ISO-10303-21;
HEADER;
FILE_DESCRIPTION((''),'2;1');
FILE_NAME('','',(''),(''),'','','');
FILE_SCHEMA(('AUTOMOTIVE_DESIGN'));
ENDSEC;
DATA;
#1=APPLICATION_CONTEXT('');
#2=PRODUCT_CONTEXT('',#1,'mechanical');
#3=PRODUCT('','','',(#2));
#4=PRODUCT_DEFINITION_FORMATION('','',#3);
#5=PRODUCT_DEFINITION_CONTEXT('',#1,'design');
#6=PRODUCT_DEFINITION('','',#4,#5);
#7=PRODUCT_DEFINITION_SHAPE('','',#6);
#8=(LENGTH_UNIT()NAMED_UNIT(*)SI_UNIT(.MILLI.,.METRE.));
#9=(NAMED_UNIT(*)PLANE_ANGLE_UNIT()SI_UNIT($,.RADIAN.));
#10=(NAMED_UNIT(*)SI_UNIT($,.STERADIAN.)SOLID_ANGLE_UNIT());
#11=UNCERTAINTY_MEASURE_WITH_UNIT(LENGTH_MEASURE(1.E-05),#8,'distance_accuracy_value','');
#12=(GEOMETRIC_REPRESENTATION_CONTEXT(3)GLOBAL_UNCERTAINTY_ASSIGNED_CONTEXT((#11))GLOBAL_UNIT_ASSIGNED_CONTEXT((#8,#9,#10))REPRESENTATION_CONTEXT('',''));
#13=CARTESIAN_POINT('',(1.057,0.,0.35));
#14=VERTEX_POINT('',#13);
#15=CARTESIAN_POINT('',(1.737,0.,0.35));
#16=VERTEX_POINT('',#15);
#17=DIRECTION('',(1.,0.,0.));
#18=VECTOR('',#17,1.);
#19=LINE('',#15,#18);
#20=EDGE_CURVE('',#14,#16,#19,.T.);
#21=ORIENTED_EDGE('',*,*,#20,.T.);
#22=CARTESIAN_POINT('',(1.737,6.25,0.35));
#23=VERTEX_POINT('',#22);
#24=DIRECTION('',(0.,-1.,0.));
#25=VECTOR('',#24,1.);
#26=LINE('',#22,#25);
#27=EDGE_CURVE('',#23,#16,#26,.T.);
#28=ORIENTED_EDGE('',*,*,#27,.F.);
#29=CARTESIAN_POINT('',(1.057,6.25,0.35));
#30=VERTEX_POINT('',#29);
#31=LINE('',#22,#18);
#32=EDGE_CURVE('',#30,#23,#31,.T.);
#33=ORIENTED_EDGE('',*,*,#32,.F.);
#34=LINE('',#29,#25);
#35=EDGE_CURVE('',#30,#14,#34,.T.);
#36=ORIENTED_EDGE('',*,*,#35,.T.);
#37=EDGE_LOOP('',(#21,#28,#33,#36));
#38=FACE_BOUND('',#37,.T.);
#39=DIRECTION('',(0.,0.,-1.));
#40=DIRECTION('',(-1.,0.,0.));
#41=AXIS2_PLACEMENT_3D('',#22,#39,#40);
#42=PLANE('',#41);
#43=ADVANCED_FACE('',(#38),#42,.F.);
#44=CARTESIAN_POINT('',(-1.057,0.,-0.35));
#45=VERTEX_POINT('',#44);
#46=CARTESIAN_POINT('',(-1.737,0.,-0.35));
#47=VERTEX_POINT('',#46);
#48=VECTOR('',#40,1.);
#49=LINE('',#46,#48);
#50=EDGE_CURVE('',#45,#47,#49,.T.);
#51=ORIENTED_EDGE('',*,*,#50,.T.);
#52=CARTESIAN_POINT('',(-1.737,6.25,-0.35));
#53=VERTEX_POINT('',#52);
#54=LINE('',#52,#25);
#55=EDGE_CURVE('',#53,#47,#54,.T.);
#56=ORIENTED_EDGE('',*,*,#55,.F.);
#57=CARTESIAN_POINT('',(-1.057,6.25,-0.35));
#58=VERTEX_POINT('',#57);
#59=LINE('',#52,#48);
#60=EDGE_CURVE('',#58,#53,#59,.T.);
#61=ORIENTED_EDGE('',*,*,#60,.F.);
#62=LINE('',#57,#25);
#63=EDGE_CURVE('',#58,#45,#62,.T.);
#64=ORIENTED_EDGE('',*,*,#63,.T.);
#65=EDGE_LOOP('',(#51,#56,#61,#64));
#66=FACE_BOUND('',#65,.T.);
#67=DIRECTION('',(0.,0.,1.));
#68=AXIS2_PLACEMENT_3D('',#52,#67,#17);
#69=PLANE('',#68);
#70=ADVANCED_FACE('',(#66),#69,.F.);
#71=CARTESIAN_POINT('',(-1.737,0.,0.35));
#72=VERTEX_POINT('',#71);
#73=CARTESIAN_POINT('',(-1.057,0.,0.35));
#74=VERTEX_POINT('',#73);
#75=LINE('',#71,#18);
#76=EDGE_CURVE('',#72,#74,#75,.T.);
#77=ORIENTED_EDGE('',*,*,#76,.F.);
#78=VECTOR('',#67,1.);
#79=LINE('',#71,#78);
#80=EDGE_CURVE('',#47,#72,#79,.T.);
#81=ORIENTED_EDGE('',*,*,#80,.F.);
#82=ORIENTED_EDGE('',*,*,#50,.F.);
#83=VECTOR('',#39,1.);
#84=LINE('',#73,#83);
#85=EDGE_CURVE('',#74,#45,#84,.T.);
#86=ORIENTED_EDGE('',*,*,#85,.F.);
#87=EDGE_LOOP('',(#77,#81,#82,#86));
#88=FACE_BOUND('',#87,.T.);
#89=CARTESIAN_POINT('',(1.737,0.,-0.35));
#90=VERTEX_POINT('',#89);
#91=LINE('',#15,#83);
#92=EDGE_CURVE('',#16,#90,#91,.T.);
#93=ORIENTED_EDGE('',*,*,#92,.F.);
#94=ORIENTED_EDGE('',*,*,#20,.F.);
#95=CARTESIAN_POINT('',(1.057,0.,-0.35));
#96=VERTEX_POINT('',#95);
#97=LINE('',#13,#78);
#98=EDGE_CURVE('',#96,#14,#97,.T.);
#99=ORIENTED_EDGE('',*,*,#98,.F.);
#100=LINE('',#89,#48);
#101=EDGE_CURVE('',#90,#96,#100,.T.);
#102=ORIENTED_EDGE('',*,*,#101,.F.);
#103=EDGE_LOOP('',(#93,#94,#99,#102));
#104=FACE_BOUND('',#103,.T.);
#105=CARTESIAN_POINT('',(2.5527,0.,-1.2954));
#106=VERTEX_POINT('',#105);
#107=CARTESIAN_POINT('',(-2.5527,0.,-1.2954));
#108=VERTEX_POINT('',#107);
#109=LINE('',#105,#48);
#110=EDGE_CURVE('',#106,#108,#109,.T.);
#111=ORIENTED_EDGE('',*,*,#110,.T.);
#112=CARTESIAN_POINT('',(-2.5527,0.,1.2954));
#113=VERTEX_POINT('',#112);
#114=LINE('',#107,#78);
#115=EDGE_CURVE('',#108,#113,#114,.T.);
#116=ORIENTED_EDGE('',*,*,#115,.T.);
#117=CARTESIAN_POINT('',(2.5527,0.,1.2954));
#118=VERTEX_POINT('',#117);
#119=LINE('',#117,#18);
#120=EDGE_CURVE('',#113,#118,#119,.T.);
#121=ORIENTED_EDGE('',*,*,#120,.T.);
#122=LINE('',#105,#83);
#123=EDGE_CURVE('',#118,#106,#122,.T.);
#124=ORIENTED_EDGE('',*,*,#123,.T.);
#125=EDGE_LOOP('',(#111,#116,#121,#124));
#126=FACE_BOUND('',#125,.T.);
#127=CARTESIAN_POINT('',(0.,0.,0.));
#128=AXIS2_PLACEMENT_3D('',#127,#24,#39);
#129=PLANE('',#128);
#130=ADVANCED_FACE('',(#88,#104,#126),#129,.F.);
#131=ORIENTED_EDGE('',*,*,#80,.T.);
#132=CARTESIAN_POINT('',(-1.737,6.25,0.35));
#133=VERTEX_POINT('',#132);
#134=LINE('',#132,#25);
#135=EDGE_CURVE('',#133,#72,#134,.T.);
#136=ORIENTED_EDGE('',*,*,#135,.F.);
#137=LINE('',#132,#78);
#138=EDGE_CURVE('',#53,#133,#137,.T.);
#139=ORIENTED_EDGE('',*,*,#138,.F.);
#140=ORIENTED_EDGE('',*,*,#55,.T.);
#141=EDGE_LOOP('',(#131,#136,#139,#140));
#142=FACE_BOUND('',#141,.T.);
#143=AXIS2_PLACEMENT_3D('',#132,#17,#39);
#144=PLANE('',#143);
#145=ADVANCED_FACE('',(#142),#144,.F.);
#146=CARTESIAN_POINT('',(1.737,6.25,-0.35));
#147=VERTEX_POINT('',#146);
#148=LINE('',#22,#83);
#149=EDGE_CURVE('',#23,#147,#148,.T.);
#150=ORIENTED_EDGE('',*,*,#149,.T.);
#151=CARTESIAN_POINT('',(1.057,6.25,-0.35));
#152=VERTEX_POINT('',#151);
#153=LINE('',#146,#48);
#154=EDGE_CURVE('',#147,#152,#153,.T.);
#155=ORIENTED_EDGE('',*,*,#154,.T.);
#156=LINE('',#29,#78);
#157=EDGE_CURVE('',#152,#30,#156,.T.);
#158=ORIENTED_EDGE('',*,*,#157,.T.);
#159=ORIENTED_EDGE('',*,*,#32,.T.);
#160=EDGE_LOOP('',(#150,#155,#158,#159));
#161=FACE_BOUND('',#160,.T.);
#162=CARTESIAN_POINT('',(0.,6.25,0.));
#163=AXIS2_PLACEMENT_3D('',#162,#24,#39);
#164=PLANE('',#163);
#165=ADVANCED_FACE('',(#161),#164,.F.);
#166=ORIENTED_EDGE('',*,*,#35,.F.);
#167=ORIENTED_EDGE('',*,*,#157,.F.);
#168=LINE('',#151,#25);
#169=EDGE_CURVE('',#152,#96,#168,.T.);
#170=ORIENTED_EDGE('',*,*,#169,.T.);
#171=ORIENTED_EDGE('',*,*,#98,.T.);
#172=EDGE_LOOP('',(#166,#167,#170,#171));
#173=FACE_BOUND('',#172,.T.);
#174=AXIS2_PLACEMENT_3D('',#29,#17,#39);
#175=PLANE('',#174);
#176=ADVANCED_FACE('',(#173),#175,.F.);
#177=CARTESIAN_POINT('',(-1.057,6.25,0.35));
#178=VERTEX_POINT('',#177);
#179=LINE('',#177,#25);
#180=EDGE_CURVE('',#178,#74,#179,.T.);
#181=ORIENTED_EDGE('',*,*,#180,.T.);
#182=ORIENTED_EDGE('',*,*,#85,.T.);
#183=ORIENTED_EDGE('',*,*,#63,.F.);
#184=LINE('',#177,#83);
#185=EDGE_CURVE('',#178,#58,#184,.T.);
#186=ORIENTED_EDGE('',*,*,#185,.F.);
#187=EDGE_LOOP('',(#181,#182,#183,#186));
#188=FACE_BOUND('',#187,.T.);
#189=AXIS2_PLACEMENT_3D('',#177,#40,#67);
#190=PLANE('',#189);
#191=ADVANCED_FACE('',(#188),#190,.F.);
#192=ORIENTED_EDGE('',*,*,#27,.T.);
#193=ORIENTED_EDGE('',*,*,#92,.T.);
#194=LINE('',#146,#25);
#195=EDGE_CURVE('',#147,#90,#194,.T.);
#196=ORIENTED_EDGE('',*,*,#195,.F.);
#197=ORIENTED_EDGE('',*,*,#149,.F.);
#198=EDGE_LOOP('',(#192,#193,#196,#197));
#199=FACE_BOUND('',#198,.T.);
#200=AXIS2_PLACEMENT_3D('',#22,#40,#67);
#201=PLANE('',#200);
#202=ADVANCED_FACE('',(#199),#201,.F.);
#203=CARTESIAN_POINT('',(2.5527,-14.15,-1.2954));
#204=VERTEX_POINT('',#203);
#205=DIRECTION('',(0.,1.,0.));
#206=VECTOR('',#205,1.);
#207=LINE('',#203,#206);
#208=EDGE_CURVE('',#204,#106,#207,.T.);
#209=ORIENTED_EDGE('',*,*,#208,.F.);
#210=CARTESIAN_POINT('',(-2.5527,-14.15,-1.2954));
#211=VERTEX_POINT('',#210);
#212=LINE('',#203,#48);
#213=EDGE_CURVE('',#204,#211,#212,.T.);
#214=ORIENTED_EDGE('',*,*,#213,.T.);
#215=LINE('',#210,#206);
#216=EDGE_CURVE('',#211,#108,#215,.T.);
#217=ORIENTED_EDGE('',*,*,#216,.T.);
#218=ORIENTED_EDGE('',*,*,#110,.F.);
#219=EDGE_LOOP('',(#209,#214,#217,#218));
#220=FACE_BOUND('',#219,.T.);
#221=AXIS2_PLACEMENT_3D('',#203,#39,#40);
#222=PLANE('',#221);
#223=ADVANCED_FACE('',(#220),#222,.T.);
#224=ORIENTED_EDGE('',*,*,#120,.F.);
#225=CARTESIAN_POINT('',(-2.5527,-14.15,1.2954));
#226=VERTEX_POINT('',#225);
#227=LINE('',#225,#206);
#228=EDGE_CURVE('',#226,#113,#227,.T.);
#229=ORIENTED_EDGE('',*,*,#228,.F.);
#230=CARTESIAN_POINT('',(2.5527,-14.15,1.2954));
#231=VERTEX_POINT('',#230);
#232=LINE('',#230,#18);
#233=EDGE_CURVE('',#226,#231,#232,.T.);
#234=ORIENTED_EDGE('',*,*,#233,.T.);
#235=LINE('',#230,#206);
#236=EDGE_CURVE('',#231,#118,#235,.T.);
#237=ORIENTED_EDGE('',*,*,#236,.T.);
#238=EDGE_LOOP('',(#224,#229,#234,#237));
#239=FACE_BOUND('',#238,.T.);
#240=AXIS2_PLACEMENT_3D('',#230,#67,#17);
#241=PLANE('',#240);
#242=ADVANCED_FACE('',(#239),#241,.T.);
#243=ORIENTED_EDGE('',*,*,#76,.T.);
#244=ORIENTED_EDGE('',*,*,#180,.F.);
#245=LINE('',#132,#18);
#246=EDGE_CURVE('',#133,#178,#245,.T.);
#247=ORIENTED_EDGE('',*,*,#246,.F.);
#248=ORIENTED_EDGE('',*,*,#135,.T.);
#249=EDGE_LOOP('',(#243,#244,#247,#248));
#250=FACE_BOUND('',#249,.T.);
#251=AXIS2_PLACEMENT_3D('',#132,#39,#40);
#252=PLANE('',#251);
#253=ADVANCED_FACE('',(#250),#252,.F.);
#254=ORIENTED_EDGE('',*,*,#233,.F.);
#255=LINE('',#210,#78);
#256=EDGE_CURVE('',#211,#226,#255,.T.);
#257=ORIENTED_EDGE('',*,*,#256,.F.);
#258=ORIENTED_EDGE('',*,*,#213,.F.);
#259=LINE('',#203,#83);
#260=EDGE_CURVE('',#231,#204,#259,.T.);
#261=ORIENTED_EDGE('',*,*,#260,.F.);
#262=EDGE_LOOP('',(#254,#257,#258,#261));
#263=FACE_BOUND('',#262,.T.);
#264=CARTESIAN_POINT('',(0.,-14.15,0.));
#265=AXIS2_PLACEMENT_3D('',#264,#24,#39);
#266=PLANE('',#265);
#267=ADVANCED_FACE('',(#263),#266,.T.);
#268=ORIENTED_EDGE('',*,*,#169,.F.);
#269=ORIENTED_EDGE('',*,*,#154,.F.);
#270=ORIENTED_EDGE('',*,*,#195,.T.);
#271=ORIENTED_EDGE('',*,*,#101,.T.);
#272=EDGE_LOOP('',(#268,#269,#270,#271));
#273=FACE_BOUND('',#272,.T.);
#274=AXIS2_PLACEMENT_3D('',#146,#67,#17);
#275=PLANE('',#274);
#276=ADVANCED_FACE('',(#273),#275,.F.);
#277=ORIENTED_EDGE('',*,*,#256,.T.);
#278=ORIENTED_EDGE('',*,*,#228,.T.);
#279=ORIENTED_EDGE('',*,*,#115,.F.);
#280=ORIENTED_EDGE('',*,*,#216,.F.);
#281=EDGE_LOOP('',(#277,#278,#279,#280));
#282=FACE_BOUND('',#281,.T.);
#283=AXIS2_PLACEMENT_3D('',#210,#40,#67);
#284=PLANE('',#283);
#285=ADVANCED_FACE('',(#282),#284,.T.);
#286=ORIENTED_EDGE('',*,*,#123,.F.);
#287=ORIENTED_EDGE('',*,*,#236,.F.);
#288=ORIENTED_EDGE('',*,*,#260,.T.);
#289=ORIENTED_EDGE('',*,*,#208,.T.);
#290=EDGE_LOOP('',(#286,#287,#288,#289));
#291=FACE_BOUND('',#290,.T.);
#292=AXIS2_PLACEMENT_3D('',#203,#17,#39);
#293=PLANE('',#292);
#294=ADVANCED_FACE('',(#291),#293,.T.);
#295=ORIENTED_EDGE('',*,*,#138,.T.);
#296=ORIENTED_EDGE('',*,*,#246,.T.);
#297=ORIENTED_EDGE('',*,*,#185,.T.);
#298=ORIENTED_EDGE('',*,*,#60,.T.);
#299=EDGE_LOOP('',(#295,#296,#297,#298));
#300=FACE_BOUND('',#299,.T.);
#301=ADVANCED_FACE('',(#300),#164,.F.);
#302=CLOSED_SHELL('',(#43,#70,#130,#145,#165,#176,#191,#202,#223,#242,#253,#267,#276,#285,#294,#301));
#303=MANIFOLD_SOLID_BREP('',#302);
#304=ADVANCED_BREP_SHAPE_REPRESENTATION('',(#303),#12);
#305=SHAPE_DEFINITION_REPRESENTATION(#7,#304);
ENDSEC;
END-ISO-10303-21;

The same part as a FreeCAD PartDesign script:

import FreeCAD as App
import Part
import Sketcher
from FreeCAD import Vector
Q = App.Units.Quantity

doc = App.newDocument("Part")
body = doc.addObject("PartDesign::Body", "Body")

# Sketch on XZ plane
sketch1 = body.newObject("Sketcher::SketchObject", "Sketch")
sketch1.AttachmentSupport = (doc.getObject("XZ_Plane"), [""])
sketch1.MapMode = "FlatFace"
sketch1.addGeometry(Part.LineSegment(Vector(-2.6, -1.3, 0), Vector(-2.6, 1.3, 0)), False)
sketch1.addGeometry(Part.LineSegment(Vector(-2.6, 1.3, 0), Vector(2.6, 1.3, 0)), False)
sketch1.addGeometry(Part.LineSegment(Vector(2.6, 1.3, 0), Vector(2.6, -1.3, 0)), False)
sketch1.addGeometry(Part.LineSegment(Vector(2.6, -1.3, 0), Vector(-2.6, -1.3, 0)), False)
sketch1.addConstraint(Sketcher.Constraint("Coincident", 0, 2, 1, 1))
sketch1.addConstraint(Sketcher.Constraint("Coincident", 1, 2, 2, 1))
sketch1.addConstraint(Sketcher.Constraint("Coincident", 2, 2, 3, 1))
sketch1.addConstraint(Sketcher.Constraint("Coincident", 3, 2, 0, 1))
sketch1.addConstraint(Sketcher.Constraint("Vertical", 0))
sketch1.addConstraint(Sketcher.Constraint("Horizontal", 1))
sketch1.addConstraint(Sketcher.Constraint("Vertical", 2))
sketch1.addConstraint(Sketcher.Constraint("Horizontal", 3))
sketch1.addConstraint(Sketcher.Constraint("Symmetric", 0, 2, 2, 2, -1, 1))
sketch1.addConstraint(Sketcher.Constraint("DistanceX", 1, 1, 1, 2, Q("0.201 in")))
sketch1.addConstraint(Sketcher.Constraint("DistanceY", 0, 1, 0, 2, Q("0.102 in")))
pad1 = body.newObject("PartDesign::Pad", "Pad")
pad1.Profile = sketch1
pad1.Length = 14.15

# Sketch on XZ plane
sketch2 = body.newObject("Sketcher::SketchObject", "Sketch001")
sketch2.AttachmentSupport = (doc.getObject("XZ_Plane"), [""])
sketch2.MapMode = "FlatFace"
sketch2.addGeometry(Part.LineSegment(Vector(-1.7, -0.3, 0), Vector(-1.7, 0.3, 0)), False)
sketch2.addGeometry(Part.LineSegment(Vector(-1.7, 0.3, 0), Vector(-1.1, 0.3, 0)), False)
sketch2.addGeometry(Part.LineSegment(Vector(-1.1, 0.3, 0), Vector(-1.1, -0.3, 0)), False)
sketch2.addGeometry(Part.LineSegment(Vector(-1.1, -0.3, 0), Vector(-1.7, -0.3, 0)), False)
sketch2.addGeometry(Part.LineSegment(Vector(1.1, -0.3, 0), Vector(1.1, 0.3, 0)), False)
sketch2.addGeometry(Part.LineSegment(Vector(1.1, 0.3, 0), Vector(1.7, 0.3, 0)), False)
sketch2.addGeometry(Part.LineSegment(Vector(1.7, 0.3, 0), Vector(1.7, -0.3, 0)), False)
sketch2.addGeometry(Part.LineSegment(Vector(1.7, -0.3, 0), Vector(1.1, -0.3, 0)), False)
sketch2.addConstraint(Sketcher.Constraint("Coincident", 0, 2, 1, 1))
sketch2.addConstraint(Sketcher.Constraint("Coincident", 1, 2, 2, 1))
sketch2.addConstraint(Sketcher.Constraint("Coincident", 2, 2, 3, 1))
sketch2.addConstraint(Sketcher.Constraint("Coincident", 3, 2, 0, 1))
sketch2.addConstraint(Sketcher.Constraint("Coincident", 4, 2, 5, 1))
sketch2.addConstraint(Sketcher.Constraint("Coincident", 5, 2, 6, 1))
sketch2.addConstraint(Sketcher.Constraint("Coincident", 6, 2, 7, 1))
sketch2.addConstraint(Sketcher.Constraint("Coincident", 7, 2, 4, 1))
sketch2.addConstraint(Sketcher.Constraint("Vertical", 0))
sketch2.addConstraint(Sketcher.Constraint("Horizontal", 1))
sketch2.addConstraint(Sketcher.Constraint("Vertical", 2))
sketch2.addConstraint(Sketcher.Constraint("Horizontal", 3))
sketch2.addConstraint(Sketcher.Constraint("Vertical", 4))
sketch2.addConstraint(Sketcher.Constraint("Horizontal", 5))
sketch2.addConstraint(Sketcher.Constraint("Vertical", 6))
sketch2.addConstraint(Sketcher.Constraint("Horizontal", 7))
sketch2.addConstraint(Sketcher.Constraint("Symmetric", 2, 2, 4, 2, -1, 1))
sketch2.addConstraint(Sketcher.Constraint("Symmetric", 0, 2, 6, 2, -1, 1))
sketch2.addConstraint(Sketcher.Constraint("Horizontal", 1, 2, 4, 2))
sketch2.addConstraint(Sketcher.Constraint("DistanceX", 0, 2, 4, 2, Q("0.11 in")))
sketch2.addConstraint(Sketcher.Constraint("DistanceX", 1, 1, 1, 2, 0.68))
sketch2.addConstraint(Sketcher.Constraint("DistanceY", 0, 1, 0, 2, 0.7))
pad2 = body.newObject("PartDesign::Pad", "Pad001")
pad2.Profile = sketch2
pad2.Length = 6.25
pad2.Reversed = True

doc.recompute()
